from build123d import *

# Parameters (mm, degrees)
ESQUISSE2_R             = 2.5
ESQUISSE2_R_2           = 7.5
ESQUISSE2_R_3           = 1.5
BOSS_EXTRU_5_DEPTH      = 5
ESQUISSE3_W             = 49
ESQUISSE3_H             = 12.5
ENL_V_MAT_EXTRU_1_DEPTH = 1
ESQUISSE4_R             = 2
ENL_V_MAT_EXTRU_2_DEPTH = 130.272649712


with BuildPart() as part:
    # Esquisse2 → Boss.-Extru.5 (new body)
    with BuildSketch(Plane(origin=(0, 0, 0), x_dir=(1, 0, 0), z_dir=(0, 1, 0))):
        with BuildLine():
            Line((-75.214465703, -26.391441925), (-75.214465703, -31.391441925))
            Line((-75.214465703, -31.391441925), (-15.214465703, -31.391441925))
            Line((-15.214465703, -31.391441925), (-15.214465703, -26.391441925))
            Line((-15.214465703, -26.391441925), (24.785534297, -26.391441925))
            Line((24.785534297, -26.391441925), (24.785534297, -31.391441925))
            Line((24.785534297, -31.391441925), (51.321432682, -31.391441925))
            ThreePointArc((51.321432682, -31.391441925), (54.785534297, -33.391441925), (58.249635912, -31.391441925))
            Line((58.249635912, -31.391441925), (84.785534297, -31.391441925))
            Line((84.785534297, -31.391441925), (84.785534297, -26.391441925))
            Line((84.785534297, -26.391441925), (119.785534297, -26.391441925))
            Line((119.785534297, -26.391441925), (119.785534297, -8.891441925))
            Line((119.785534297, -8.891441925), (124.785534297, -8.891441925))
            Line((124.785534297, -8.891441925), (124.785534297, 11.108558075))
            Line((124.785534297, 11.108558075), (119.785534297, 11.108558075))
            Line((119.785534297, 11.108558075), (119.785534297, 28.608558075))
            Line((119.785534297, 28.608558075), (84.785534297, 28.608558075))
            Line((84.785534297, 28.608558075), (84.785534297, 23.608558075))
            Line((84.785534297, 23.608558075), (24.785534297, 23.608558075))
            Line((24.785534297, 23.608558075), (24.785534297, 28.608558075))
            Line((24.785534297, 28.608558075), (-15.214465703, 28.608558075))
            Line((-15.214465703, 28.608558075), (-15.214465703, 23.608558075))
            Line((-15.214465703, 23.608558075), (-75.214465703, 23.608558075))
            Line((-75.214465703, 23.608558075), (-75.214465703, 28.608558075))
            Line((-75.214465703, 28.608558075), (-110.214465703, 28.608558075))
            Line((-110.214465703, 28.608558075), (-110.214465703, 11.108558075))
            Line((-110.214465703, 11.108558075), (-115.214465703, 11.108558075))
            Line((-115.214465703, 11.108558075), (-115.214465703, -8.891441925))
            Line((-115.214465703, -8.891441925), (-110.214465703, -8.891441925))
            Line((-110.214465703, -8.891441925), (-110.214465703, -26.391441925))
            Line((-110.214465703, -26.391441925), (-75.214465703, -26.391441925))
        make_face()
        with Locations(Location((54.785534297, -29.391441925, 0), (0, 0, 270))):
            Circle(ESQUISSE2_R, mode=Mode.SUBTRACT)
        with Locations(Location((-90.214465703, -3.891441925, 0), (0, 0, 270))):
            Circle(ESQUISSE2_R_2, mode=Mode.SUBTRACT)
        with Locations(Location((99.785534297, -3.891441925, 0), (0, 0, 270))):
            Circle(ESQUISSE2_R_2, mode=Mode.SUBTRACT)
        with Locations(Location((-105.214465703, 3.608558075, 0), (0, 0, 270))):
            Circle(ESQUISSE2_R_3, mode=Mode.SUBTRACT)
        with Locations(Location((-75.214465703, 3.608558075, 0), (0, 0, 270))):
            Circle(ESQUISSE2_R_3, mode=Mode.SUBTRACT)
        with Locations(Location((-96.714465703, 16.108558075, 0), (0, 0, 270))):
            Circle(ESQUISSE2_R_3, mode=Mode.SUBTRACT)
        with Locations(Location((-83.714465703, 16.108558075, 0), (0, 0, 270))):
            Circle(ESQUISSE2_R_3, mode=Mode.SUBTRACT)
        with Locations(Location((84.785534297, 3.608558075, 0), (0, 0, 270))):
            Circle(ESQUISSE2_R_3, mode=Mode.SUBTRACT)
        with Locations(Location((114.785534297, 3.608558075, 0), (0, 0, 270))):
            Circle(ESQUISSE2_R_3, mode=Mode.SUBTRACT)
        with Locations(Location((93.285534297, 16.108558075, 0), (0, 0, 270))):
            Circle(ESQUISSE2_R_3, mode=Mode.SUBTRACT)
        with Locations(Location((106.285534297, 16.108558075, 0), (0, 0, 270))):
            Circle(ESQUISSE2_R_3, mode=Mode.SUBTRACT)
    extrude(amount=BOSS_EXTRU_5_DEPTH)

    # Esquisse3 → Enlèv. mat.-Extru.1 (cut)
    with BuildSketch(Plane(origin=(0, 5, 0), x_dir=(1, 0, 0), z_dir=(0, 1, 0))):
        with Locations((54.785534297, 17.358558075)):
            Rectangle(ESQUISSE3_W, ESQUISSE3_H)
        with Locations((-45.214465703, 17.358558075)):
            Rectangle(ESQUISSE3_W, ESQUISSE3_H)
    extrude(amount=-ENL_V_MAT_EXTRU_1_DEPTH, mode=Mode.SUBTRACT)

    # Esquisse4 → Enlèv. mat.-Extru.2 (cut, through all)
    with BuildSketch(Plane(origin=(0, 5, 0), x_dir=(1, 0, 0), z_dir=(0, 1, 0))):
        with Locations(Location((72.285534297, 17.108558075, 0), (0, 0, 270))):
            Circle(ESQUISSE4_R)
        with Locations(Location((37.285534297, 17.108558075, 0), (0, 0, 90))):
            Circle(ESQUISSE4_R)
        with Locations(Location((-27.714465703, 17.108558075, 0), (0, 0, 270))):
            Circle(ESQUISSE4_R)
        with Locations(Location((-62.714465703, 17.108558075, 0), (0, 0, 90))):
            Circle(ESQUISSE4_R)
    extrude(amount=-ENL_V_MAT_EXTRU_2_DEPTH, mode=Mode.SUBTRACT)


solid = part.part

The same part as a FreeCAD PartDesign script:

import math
import FreeCAD as App
import Part
import Sketcher

V = App.Vector

doc = App.newDocument("Part")
params = doc.addObject("Spreadsheet::Sheet", "Params")
for row, (alias, value) in enumerate([
    ("sketch1_diameter", "5 mm"),
    ("sketch1_diameter2", "15 mm"),
    ("sketch1_diameter3", "3 mm"),
    ("sketch1_radius", "4 mm"),
    ("sketch1_width", "60 mm"),
    ("pad1_length", "5 mm"),
    ("sketch2_width", "49 mm"),
    ("sketch2_height", "12.5 mm"),
    ("pocket1_length", "1 mm"),
    ("sketch3_diameter", "4 mm"),
], start=1):
    params.set(f"A{row}", alias)
    params.set(f"B{row}", "=" + value)
    params.setAlias(f"B{row}", alias)

body = doc.addObject("PartDesign::Body", "Body")

# Sketch on XZ plane
sketch1 = body.newObject("Sketcher::SketchObject", "Sketch")
sketch1.AttachmentSupport = (doc.getObject("XZ_Plane"), [""])
sketch1.MapMode = "FlatFace"
sketch1.addGeometry([
    Part.LineSegment(V(-75.2, 26.4, 0), V(-75.2, 31.4, 0)),  # 0
    Part.LineSegment(V(-75.2, 31.4, 0), V(-15.2, 31.4, 0)),  # 1
    Part.LineSegment(V(-15.2, 31.4, 0), V(-15.2, 26.4, 0)),  # 2
    Part.LineSegment(V(-15.2, 26.4, 0), V(24.8, 26.4, 0)),  # 3
    Part.LineSegment(V(24.8, 26.4, 0), V(24.8, 31.4, 0)),  # 4
    Part.LineSegment(V(24.8, 31.4, 0), V(51.3, 31.4, 0)),  # 5
    Part.ArcOfCircle(Part.Circle(V(54.8, 29.4, 0), V(0, 0, 1), 4), math.radians(30), math.radians(150)),  # 6
    Part.LineSegment(V(58.2, 31.4, 0), V(84.8, 31.4, 0)),  # 7
    Part.LineSegment(V(84.8, 31.4, 0), V(84.8, 26.4, 0)),  # 8
    Part.LineSegment(V(84.8, 26.4, 0), V(119.8, 26.4, 0)),  # 9
    Part.LineSegment(V(119.8, 26.4, 0), V(119.8, 8.9, 0)),  # 10
    Part.LineSegment(V(119.8, 8.9, 0), V(124.8, 8.9, 0)),  # 11
    Part.LineSegment(V(124.8, 8.9, 0), V(124.8, -11.1, 0)),  # 12
    Part.LineSegment(V(124.8, -11.1, 0), V(119.8, -11.1, 0)),  # 13
    Part.LineSegment(V(119.8, -11.1, 0), V(119.8, -28.6, 0)),  # 14
    Part.LineSegment(V(119.8, -28.6, 0), V(84.8, -28.6, 0)),  # 15
    Part.LineSegment(V(84.8, -28.6, 0), V(84.8, -23.6, 0)),  # 16
    Part.LineSegment(V(84.8, -23.6, 0), V(24.8, -23.6, 0)),  # 17
    Part.LineSegment(V(24.8, -23.6, 0), V(24.8, -28.6, 0)),  # 18
    Part.LineSegment(V(24.8, -28.6, 0), V(-15.2, -28.6, 0)),  # 19
    Part.LineSegment(V(-15.2, -28.6, 0), V(-15.2, -23.6, 0)),  # 20
    Part.LineSegment(V(-15.2, -23.6, 0), V(-75.2, -23.6, 0)),  # 21
    Part.LineSegment(V(-75.2, -23.6, 0), V(-75.2, -28.6, 0)),  # 22
    Part.LineSegment(V(-75.2, -28.6, 0), V(-110.2, -28.6, 0)),  # 23
    Part.LineSegment(V(-110.2, -28.6, 0), V(-110.2, -11.1, 0)),  # 24
    Part.LineSegment(V(-110.2, -11.1, 0), V(-115.2, -11.1, 0)),  # 25
    Part.LineSegment(V(-115.2, -11.1, 0), V(-115.2, 8.9, 0)),  # 26
    Part.LineSegment(V(-115.2, 8.9, 0), V(-110.2, 8.9, 0)),  # 27
    Part.LineSegment(V(-110.2, 8.9, 0), V(-110.2, 26.4, 0)),  # 28
    Part.LineSegment(V(-110.2, 26.4, 0), V(-75.2, 26.4, 0)),  # 29
    Part.Circle(V(54.8, 29.4, 0), V(0, 0, 1), 2.5),  # 30
    Part.Circle(V(-90.2, 3.9, 0), V(0, 0, 1), 7.5),  # 31
    Part.Circle(V(-105.2, -3.6, 0), V(0, 0, 1), 1.5),  # 32
    Part.Circle(V(-75.2, -3.6, 0), V(0, 0, 1), 1.5),  # 33
    Part.Circle(V(-96.7, -16.1, 0), V(0, 0, 1), 1.5),  # 34
    Part.Circle(V(-83.7, -16.1, 0), V(0, 0, 1), 1.5),  # 35
    Part.Circle(V(99.8, 3.9, 0), V(0, 0, 1), 7.5),  # 36
    Part.Circle(V(84.8, -3.6, 0), V(0, 0, 1), 1.5),  # 37
    Part.Circle(V(114.8, -3.6, 0), V(0, 0, 1), 1.5),  # 38
    Part.Circle(V(93.3, -16.1, 0), V(0, 0, 1), 1.5),  # 39
    Part.Circle(V(106.3, -16.1, 0), V(0, 0, 1), 1.5),  # 40
], False)
sketch1.addConstraint([
    Sketcher.Constraint("Coincident", 0, 2, 1, 1),
    Sketcher.Constraint("Coincident", 1, 2, 2, 1),
    Sketcher.Constraint("Coincident", 2, 2, 3, 1),
    Sketcher.Constraint("Coincident", 3, 2, 4, 1),
    Sketcher.Constraint("Coincident", 4, 2, 5, 1),
    Sketcher.Constraint("Coincident", 5, 2, 6, 2),
    Sketcher.Constraint("Coincident", 6, 1, 7, 1),
    Sketcher.Constraint("Coincident", 7, 2, 8, 1),
    Sketcher.Constraint("Coincident", 8, 2, 9, 1),
    Sketcher.Constraint("Coincident", 9, 2, 10, 1),
    Sketcher.Constraint("Coincident", 10, 2, 11, 1),
    Sketcher.Constraint("Coincident", 11, 2, 12, 1),
    Sketcher.Constraint("Coincident", 12, 2, 13, 1),
    Sketcher.Constraint("Coincident", 13, 2, 14, 1),
    Sketcher.Constraint("Coincident", 14, 2, 15, 1),
    Sketcher.Constraint("Coincident", 15, 2, 16, 1),
    Sketcher.Constraint("Coincident", 16, 2, 17, 1),
    Sketcher.Constraint("Coincident", 17, 2, 18, 1),
    Sketcher.Constraint("Coincident", 18, 2, 19, 1),
    Sketcher.Constraint("Coincident", 19, 2, 20, 1),
    Sketcher.Constraint("Coincident", 20, 2, 21, 1),
    Sketcher.Constraint("Coincident", 21, 2, 22, 1),
    Sketcher.Constraint("Coincident", 22, 2, 23, 1),
    Sketcher.Constraint("Coincident", 23, 2, 24, 1),
    Sketcher.Constraint("Coincident", 24, 2, 25, 1),
    Sketcher.Constraint("Coincident", 25, 2, 26, 1),
    Sketcher.Constraint("Coincident", 26, 2, 27, 1),
    Sketcher.Constraint("Coincident", 27, 2, 28, 1),
    Sketcher.Constraint("Coincident", 28, 2, 29, 1),
    Sketcher.Constraint("Coincident", 29, 2, 0, 1),
    Sketcher.Constraint("Vertical", 0),
    Sketcher.Constraint("Horizontal", 1),
    Sketcher.Constraint("Vertical", 2),
    Sketcher.Constraint("Horizontal", 3),
    Sketcher.Constraint("Vertical", 4),
    Sketcher.Constraint("Horizontal", 5),
    Sketcher.Constraint("Horizontal", 7),
    Sketcher.Constraint("Vertical", 8),
    Sketcher.Constraint("Horizontal", 9),
    Sketcher.Constraint("Vertical", 10),
    Sketcher.Constraint("Horizontal", 11),
    Sketcher.Constraint("Vertical", 12),
    Sketcher.Constraint("Horizontal", 13),
    Sketcher.Constraint("Vertical", 14),
    Sketcher.Constraint("Horizontal", 15),
    Sketcher.Constraint("Vertical", 16),
    Sketcher.Constraint("Horizontal", 17),
    Sketcher.Constraint("Vertical", 18),
    Sketcher.Constraint("Horizontal", 19),
    Sketcher.Constraint("Vertical", 20),
    Sketcher.Constraint("Horizontal", 21),
    Sketcher.Constraint("Vertical", 22),
    Sketcher.Constraint("Horizontal", 23),
    Sketcher.Constraint("Vertical", 24),
    Sketcher.Constraint("Horizontal", 25),
    Sketcher.Constraint("Vertical", 26),
    Sketcher.Constraint("Horizontal", 27),
    Sketcher.Constraint("Vertical", 28),
    Sketcher.Constraint("Horizontal", 29),
    Sketcher.Constraint("Coincident", 30, 3, 6, 3),
    Sketcher.Constraint("Equal", 32, 33),
    Sketcher.Constraint("Equal", 33, 34),
    Sketcher.Constraint("Equal", 34, 35),
    Sketcher.Constraint("Equal", 31, 36),
    Sketcher.Constraint("Equal", 35, 37),
    Sketcher.Constraint("Equal", 37, 38),
    Sketcher.Constraint("Equal", 38, 39),
    Sketcher.Constraint("Equal", 39, 40),
    Sketcher.Constraint("Horizontal", 32, 3, 33, 3),
    Sketcher.Constraint("Horizontal", 34, 3, 35, 3),
    Sketcher.Constraint("Horizontal", 31, 3, 36, 3),
    Sketcher.Constraint("Horizontal", 33, 3, 37, 3),
    Sketcher.Constraint("Horizontal", 37, 3, 38, 3),
    Sketcher.Constraint("Horizontal", 35, 3, 39, 3),
    Sketcher.Constraint("Horizontal", 39, 3, 40, 3),
    Sketcher.Constraint("Horizontal", 1, 2, 4, 2),
    Sketcher.Constraint("Horizontal", 5, 2, 6, 1),
    Sketcher.Constraint("Horizontal", 3, 2, 8, 2),
    Sketcher.Constraint("Horizontal", 15, 2, 18, 2),
    Sketcher.Constraint("Horizontal", 17, 2, 20, 2),
    Sketcher.Constraint("Horizontal", 19, 2, 22, 2),
    Sketcher.Constraint("Horizontal", 13, 2, 24, 2),
    Sketcher.Constraint("Horizontal", 11, 2, 26, 2),
    Sketcher.Constraint("Horizontal", 9, 2, 28, 2),
    Sketcher.Constraint("Vertical", 33, 3, 0, 2),
    Sketcher.Constraint("Vertical", 37, 3, 7, 2),
    Sketcher.Constraint("Vertical", 10, 2, 13, 2),
    Sketcher.Constraint("Vertical", 8, 2, 15, 2),
    Sketcher.Constraint("Vertical", 4, 2, 17, 2),
    Sketcher.Constraint("Vertical", 2, 2, 19, 2),
    Sketcher.Constraint("Vertical", 0, 2, 21, 2),
    Sketcher.Constraint("Vertical", 24, 2, 27, 2),
    Sketcher.Constraint("Equal", 5, 7),
    Sketcher.Constraint("Equal", 1, 17),
    Sketcher.Constraint("Equal", 15, 23),
    Sketcher.Constraint("Equal", 13, 25),
    Sketcher.Constraint("Equal", 27, 0),
    Sketcher.Constraint("Equal", 10, 14),
    Sketcher.Constraint("Equal", 8, 16),
    Sketcher.Constraint("Diameter", 30, 5.0),
    Sketcher.Constraint("Diameter", 31, 15.0),
    Sketcher.Constraint("Diameter", 32, 3.0),
    Sketcher.Constraint("Radius", 6, 4.0),
    Sketcher.Constraint("DistanceX", 1, 1, 1, 2, 60.0),
    Sketcher.Constraint("DistanceX", 3, 1, 3, 2, 40.0),
    Sketcher.Constraint("DistanceX", 9, 1, 9, 2, 35.0),
    Sketcher.Constraint("DistanceX", 11, 1, 11, 2, 5.0),
    Sketcher.Constraint("DistanceY", 12, 2, 12, 1, 20.0),
    Sketcher.Constraint("DistanceY", 10, 2, 10, 1, 17.5),
    Sketcher.Constraint("DistanceX", 31, 3, 6, 3, 145.0),
    Sketcher.Constraint("DistanceX", 32, 3, 31, 3, 15.0),
    Sketcher.Constraint("DistanceY", 32, 3, 6, 3, 33.0),
    Sketcher.Constraint("DistanceY", 34, 3, 31, 3, 20.0),
    Sketcher.Constraint("DistanceX", 34, 3, 35, 3, 13.0),
    Sketcher.Constraint("DistanceX", 6, 3, 36, 3, 45.0),
    Sketcher.Constraint("DistanceX", 36, 3, 38, 3, 15.0),
    Sketcher.Constraint("DistanceX", 39, 3, 40, 3, 13.0),
    Sketcher.Constraint("DistanceY", 33, 3, 0, 2, 35.0),
    Sketcher.Constraint("DistanceY", 36, 3, 10, 2, 5.0),
    Sketcher.Constraint("DistanceX", 32, 3, 34, 3, 8.5),
    Sketcher.Constraint("DistanceX", 37, 3, 39, 3, 8.5),
    Sketcher.Constraint("DistanceY", -1, 1, 6, 3, 29.391442),
    Sketcher.Constraint("DistanceX", -1, 1, 6, 3, 54.785534),
])
sketch1.setExpression("Constraints[99]", "Params.sketch1_diameter")
sketch1.setExpression("Constraints[100]", "Params.sketch1_diameter2")
sketch1.setExpression("Constraints[101]", "Params.sketch1_diameter3")
sketch1.setExpression("Constraints[102]", "Params.sketch1_radius")
sketch1.setExpression("Constraints[103]", "Params.sketch1_width")
pad1 = body.newObject("PartDesign::Pad", "Pad")
pad1.Profile = sketch1
pad1.setExpression("Length", "Params.pad1_length")
pad1.Reversed = True

# Sketch on XZ plane
sketch2 = body.newObject("Sketcher::SketchObject", "Sketch001")
sketch2.AttachmentSupport = (doc.getObject("XZ_Plane"), [""])
sketch2.MapMode = "FlatFace"
sketch2.AttachmentOffset = App.Placement(V(0, 0, -5), App.Rotation())
sketch2.addGeometry([
    Part.LineSegment(V(30, -24, 0), V(30, -11, 0)),  # 0
    Part.LineSegment(V(30, -11, 0), V(79, -11, 0)),  # 1
    Part.LineSegment(V(79, -11, 0), V(79, -24, 0)),  # 2
    Part.LineSegment(V(79, -24, 0), V(30, -24, 0)),  # 3
    Part.LineSegment(V(-70, -24, 0), V(-70, -11, 0)),  # 4
    Part.LineSegment(V(-70, -11, 0), V(-21, -11, 0)),  # 5
    Part.LineSegment(V(-21, -11, 0), V(-21, -24, 0)),  # 6
    Part.LineSegment(V(-21, -24, 0), V(-70, -24, 0)),  # 7
], False)
sketch2.addConstraint([
    Sketcher.Constraint("Coincident", 0, 2, 1, 1),
    Sketcher.Constraint("Coincident", 1, 2, 2, 1),
    Sketcher.Constraint("Coincident", 2, 2, 3, 1),
    Sketcher.Constraint("Coincident", 3, 2, 0, 1),
    Sketcher.Constraint("Coincident", 4, 2, 5, 1),
    Sketcher.Constraint("Coincident", 5, 2, 6, 1),
    Sketcher.Constraint("Coincident", 6, 2, 7, 1),
    Sketcher.Constraint("Coincident", 7, 2, 4, 1),
    Sketcher.Constraint("Vertical", 0),
    Sketcher.Constraint("Horizontal", 1),
    Sketcher.Constraint("Vertical", 2),
    Sketcher.Constraint("Horizontal", 3),
    Sketcher.Constraint("Vertical", 4),
    Sketcher.Constraint("Horizontal", 5),
    Sketcher.Constraint("Vertical", 6),
    Sketcher.Constraint("Horizontal", 7),
    Sketcher.Constraint("Horizontal", 1, 2, 4, 2),
    Sketcher.Constraint("Horizontal", 3, 2, 6, 2),
    Sketcher.Constraint("Equal", 3, 5),
    Sketcher.Constraint("DistanceX", 1, 1, 1, 2, 49.0),
    Sketcher.Constraint("DistanceY", 0, 1, 0, 2, 12.5),
    Sketcher.Constraint("DistanceX", 4, 2, 0, 2, 100.0),
    Sketcher.Constraint("DistanceY", 0, 2, -1, 1, 11.108558),
    Sketcher.Constraint("DistanceX", -1, 1, 0, 2, 30.285534),
])
sketch2.setExpression("Constraints[19]", "Params.sketch2_width")
sketch2.setExpression("Constraints[20]", "Params.sketch2_height")
pocket1 = body.newObject("PartDesign::Pocket", "Pocket")
pocket1.Profile = sketch2
pocket1.setExpression("Length", "Params.pocket1_length")
pocket1.Reversed = True

# Sketch on XZ plane
sketch3 = body.newObject("Sketcher::SketchObject", "Sketch002")
sketch3.AttachmentSupport = (doc.getObject("XZ_Plane"), [""])
sketch3.MapMode = "FlatFace"
sketch3.AttachmentOffset = App.Placement(V(0, 0, -5), App.Rotation())
sketch3.addGeometry([
    Part.Circle(V(72.3, -17.1, 0), V(0, 0, 1), 2),
    Part.Circle(V(37.3, -17.1, 0), V(0, 0, 1), 2),
    Part.Circle(V(-27.7, -17.1, 0), V(0, 0, 1), 2),
    Part.Circle(V(-62.7, -17.1, 0), V(0, 0, 1), 2),
], False)
sketch3.addConstraint([
    Sketcher.Constraint("Equal", 0, 1),
    Sketcher.Constraint("Equal", 1, 2),
    Sketcher.Constraint("Equal", 2, 3),
    Sketcher.Constraint("Horizontal", 0, 3, 1, 3),
    Sketcher.Constraint("Horizontal", 1, 3, 2, 3),
    Sketcher.Constraint("Horizontal", 2, 3, 3, 3),
    Sketcher.Constraint("Diameter", 0, 4.0),
    Sketcher.Constraint("DistanceX", 1, 3, 0, 3, 35.0),
    Sketcher.Constraint("DistanceX", 2, 3, 1, 3, 65.0),
    Sketcher.Constraint("DistanceX", 3, 3, 2, 3, 35.0),
    Sketcher.Constraint("DistanceY", 0, 3, -1, 1, 17.108558),
    Sketcher.Constraint("DistanceX", -1, 1, 0, 3, 72.285534),
])
sketch3.setExpression("Constraints[6]", "Params.sketch3_diameter")
pocket2 = body.newObject("PartDesign::Pocket", "Pocket001")
pocket2.Profile = sketch3
pocket2.Type = "ThroughAll"
pocket2.Reversed = True

doc.recompute()
